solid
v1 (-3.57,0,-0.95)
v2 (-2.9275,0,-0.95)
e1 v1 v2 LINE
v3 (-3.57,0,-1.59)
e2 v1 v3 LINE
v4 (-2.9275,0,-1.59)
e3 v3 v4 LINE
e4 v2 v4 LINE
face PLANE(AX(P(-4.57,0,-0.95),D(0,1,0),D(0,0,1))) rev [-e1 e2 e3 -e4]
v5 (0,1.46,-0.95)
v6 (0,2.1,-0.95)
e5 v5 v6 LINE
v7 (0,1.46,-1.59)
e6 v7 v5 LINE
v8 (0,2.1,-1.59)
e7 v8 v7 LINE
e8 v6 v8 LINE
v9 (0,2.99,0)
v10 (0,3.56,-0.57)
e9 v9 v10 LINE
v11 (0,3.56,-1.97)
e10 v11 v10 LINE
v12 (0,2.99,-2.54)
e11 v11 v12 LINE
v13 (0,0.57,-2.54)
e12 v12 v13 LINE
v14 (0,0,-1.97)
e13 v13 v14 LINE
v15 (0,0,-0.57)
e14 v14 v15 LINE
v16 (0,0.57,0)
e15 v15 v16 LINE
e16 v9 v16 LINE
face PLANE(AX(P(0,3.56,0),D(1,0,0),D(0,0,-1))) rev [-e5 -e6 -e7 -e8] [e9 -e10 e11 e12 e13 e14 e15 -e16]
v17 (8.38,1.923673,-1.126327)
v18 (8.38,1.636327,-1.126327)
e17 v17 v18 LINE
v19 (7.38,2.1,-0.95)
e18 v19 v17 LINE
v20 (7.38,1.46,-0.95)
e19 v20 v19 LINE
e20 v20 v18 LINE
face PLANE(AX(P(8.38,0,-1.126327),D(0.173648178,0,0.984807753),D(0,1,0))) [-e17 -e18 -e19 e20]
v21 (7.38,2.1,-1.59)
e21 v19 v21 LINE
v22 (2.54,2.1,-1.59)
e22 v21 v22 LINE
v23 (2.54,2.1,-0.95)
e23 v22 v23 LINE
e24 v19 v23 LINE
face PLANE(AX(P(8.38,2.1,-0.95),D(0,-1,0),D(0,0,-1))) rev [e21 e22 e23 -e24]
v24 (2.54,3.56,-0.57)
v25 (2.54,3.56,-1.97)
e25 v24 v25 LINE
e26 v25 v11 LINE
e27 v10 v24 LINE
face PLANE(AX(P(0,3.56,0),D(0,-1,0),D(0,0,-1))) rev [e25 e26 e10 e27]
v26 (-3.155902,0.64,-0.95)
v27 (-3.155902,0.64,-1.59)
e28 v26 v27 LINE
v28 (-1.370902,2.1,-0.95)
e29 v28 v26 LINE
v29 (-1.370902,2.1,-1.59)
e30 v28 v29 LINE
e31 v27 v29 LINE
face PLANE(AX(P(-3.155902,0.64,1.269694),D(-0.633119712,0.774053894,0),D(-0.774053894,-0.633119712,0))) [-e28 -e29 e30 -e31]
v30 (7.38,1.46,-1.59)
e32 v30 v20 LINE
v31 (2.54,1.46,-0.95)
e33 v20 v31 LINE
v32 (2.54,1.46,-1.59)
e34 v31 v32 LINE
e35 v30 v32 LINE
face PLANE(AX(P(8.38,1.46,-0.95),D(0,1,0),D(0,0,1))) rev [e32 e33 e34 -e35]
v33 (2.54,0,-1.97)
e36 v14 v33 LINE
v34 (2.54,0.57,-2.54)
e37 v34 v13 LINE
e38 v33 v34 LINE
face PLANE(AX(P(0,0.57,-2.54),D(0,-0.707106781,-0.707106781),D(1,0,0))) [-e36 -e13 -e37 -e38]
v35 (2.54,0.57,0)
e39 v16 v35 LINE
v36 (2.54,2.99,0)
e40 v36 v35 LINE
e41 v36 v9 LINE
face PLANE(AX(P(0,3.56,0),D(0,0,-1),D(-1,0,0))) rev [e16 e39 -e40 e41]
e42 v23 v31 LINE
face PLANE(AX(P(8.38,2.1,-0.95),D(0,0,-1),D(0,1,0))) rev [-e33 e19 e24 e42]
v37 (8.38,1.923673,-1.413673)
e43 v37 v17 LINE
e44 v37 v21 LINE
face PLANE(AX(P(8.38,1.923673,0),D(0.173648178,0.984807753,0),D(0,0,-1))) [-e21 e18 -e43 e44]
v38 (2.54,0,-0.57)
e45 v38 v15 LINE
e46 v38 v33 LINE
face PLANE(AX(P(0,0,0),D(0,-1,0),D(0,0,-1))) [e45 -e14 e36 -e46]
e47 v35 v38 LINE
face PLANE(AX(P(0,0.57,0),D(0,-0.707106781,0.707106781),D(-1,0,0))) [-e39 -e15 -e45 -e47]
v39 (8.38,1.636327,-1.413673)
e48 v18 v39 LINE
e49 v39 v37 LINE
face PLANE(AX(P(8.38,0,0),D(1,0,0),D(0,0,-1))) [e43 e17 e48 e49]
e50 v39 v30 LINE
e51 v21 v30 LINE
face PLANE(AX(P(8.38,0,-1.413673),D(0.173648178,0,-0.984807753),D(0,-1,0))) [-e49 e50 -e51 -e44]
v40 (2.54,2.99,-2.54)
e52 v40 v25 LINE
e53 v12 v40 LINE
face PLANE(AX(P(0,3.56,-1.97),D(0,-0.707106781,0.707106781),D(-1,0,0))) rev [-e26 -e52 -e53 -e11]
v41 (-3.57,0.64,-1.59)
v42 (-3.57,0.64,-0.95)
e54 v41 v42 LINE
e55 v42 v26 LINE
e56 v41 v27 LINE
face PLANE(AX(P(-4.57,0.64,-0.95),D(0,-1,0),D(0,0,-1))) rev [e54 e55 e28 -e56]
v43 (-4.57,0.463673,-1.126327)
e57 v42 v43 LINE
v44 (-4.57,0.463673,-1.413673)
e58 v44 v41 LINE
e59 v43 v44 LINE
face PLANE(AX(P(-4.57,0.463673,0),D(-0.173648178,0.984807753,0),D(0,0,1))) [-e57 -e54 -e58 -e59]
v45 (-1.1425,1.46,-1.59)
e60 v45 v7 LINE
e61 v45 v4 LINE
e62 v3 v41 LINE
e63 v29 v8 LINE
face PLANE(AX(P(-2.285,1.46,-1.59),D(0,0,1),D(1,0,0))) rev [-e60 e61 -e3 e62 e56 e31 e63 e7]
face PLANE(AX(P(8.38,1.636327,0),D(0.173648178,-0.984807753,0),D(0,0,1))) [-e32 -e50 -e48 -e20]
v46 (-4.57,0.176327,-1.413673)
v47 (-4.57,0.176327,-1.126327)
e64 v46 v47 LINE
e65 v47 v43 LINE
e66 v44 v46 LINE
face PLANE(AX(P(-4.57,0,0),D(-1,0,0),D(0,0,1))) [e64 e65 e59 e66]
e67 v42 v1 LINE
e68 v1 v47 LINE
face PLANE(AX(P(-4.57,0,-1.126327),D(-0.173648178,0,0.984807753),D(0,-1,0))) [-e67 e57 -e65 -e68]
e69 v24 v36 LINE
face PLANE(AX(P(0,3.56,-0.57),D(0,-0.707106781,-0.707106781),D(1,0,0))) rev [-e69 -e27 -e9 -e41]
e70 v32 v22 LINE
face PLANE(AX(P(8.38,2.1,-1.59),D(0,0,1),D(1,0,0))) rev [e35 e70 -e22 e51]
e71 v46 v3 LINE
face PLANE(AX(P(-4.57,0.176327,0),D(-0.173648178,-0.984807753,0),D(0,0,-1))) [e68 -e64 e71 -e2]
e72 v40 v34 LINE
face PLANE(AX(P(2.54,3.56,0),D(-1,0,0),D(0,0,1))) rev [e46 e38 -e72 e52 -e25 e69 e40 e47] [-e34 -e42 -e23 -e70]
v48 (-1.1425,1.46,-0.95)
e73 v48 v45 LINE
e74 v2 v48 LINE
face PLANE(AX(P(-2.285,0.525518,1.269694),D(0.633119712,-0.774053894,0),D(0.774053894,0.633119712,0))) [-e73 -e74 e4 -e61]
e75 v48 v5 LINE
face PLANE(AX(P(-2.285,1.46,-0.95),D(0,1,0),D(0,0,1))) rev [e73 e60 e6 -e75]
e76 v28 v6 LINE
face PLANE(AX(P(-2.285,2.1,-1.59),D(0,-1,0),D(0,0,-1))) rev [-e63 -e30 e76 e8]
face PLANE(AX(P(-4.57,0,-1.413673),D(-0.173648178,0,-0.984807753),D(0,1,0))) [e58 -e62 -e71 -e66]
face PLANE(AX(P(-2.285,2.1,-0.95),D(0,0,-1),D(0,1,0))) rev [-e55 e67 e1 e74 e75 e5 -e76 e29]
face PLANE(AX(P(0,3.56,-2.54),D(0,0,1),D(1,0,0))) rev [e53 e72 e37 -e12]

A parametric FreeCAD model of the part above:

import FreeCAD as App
import Part
import Sketcher
Q = App.Units.Quantity


def edges_at(feature, points):
    """Names of the edges that pass closest to the given points."""
    edges = feature.Shape.Edges
    near = lambda p: min(range(len(edges)), key=lambda i: edges[i].distToShape(Part.Vertex(*p))[0])
    return sorted({f"Edge{near(p) + 1}" for p in points})


def add_polygon(sketch, points):
    """Adds a closed chain of lines whose ends are joined by coincident constraints."""
    first, n = sketch.GeometryCount, len(points)
    for a, b in zip(points, points[1:] + points[:1]):
        sketch.addGeometry(Part.LineSegment(App.Vector(*a, 0), App.Vector(*b, 0)), False)
    for i in range(n):
        sketch.addConstraint(Sketcher.Constraint("Coincident", first + i, 2, first + (i + 1) % n, 1))

doc = App.newDocument("Part")
params = doc.addObject("Spreadsheet::Sheet", "Params")
for row, (alias, value) in enumerate([
    ("sketch1_width", "2.54 mm"),
    ("pad1_length", "3.56 mm"),
    ("sketch2_width", "0.64 mm"),
    ("pad2_length", "5.84 mm"),
    ("chamfer_size", "0.57 mm"),
    ("chamfer2_size", "1 mm"),
    ("chamfer2_size2", "0.176327 mm"),
    ("chamfer3_size", "1 mm"),
    ("chamfer3_size2", "0.176327 mm"),
    ("chamfer4_size", "1 mm"),
    ("chamfer4_size2", "0.176327 mm"),
    ("chamfer5_size", "1 mm"),
    ("chamfer5_size2", "0.176327 mm"),
    ("sketch3_width", "0.64 mm"),
    ("pad3_length", "2.285 mm"),
    ("sketch4_width", "0.64 mm"),
    ("pad4_length", "2.285 mm"),
    ("chamfer6_size", "1 mm"),
    ("chamfer6_size2", "0.176327 mm"),
    ("chamfer7_size", "1 mm"),
    ("chamfer7_size2", "0.176327 mm"),
    ("chamfer8_size", "1 mm"),
    ("chamfer8_size2", "0.176327 mm"),
    ("chamfer9_size", "1 mm"),
    ("chamfer9_size2", "0.176327 mm"),
    ("pad5_length", "0.64 mm"),
    ("sketch6_height", "0.64 mm"),
], start=1):
    params.set(f"A{row}", alias)
    params.set(f"B{row}", "=" + value)
    params.setAlias(f"B{row}", alias)

body = doc.addObject("PartDesign::Body", "Body")

# Sketch on XZ plane
sketch1 = body.newObject("Sketcher::SketchObject", "Sketch")
sketch1.AttachmentSupport = (doc.getObject("XZ_Plane"), [""])
sketch1.MapMode = "FlatFace"
add_polygon(sketch1, [(0, -2.5), (0, 0), (2.5, 0), (2.5, -2.5)])  # lines 0-3
sketch1.addConstraint([
    Sketcher.Constraint("Vertical", 0),
    Sketcher.Constraint("Horizontal", 1),
    Sketcher.Constraint("Vertical", 2),
    Sketcher.Constraint("Horizontal", 3),
    Sketcher.Constraint("Coincident", 0, 2, -1, 1),
    Sketcher.Constraint("Equal", 3, 0),
    Sketcher.Constraint("DistanceX", 1, 1, 1, 2, Q("2.54 mm")),
])
sketch1.setExpression("Constraints[10]", "Params.sketch1_width")
pad1 = body.newObject("PartDesign::Pad", "Pad")
pad1.Profile = sketch1
pad1.setExpression("Length", "Params.pad1_length")
pad1.Reversed = True

# Sketch on YZ plane
sketch2 = body.newObject("Sketcher::SketchObject", "Sketch001")
sketch2.AttachmentSupport = (doc.getObject("YZ_Plane"), [""])
sketch2.MapMode = "FlatFace"
sketch2.AttachmentOffset = App.Placement(App.Vector(0, 0, 2.54), App.Rotation())
add_polygon(sketch2, [(2.1, -0.9), (1.5, -0.9), (1.5, -1.6), (2.1, -1.6)])  # lines 0-3
sketch2.addConstraint([
    Sketcher.Constraint("Horizontal", 0),
    Sketcher.Constraint("Vertical", 1),
    Sketcher.Constraint("Horizontal", 2),
    Sketcher.Constraint("Vertical", 3),
    Sketcher.Constraint("Equal", 2, 1),
    Sketcher.Constraint("DistanceX", 0, 2, 0, 1, Q("0.64 mm")),
    Sketcher.Constraint("DistanceX", -1, 1, 2, 2, Q("2.1 mm")),
    Sketcher.Constraint("DistanceY", 0, 2, -1, 1, Q("0.95 mm")),
])
sketch2.setExpression("Constraints[9]", "Params.sketch2_width")
pad2 = body.newObject("PartDesign::Pad", "Pad001")
pad2.Profile = sketch2
pad2.setExpression("Length", "Params.pad2_length")
doc.recompute()

chamfer = body.newObject("PartDesign::Chamfer", "Chamfer")
chamfer.Base = (pad2, edges_at(pad2, [
    (1.27, 3.56, -2.54),
    (1.27, 0, -2.54),
    (1.27, 0, 0),
    (1.27, 3.56, 0),
]))
chamfer.setExpression("Size", "Params.chamfer_size")
doc.recompute()

chamfer2 = body.newObject("PartDesign::Chamfer", "Chamfer001")
chamfer2.Base = (chamfer, edges_at(chamfer, [(8.38, 1.78, -0.95)]))
chamfer2.ChamferType = "Two distances"
chamfer2.setExpression("Size", "Params.chamfer2_size")
chamfer2.setExpression("Size2", "Params.chamfer2_size2")
doc.recompute()

chamfer3 = body.newObject("PartDesign::Chamfer", "Chamfer002")
chamfer3.Base = (chamfer2, edges_at(chamfer2, [(8.38, 1.46, -1.358)]))
chamfer3.ChamferType = "Two distances"
chamfer3.setExpression("Size", "Params.chamfer3_size")
chamfer3.setExpression("Size2", "Params.chamfer3_size2")
chamfer3.FlipDirection = True
doc.recompute()

chamfer4 = body.newObject("PartDesign::Chamfer", "Chamfer003")
chamfer4.Base = (chamfer3, edges_at(chamfer3, [(8.38, 1.868, -1.59)]))
chamfer4.ChamferType = "Two distances"
chamfer4.setExpression("Size", "Params.chamfer4_size")
chamfer4.setExpression("Size2", "Params.chamfer4_size2")
chamfer4.FlipDirection = True
doc.recompute()

chamfer5 = body.newObject("PartDesign::Chamfer", "Chamfer004")
chamfer5.Base = (chamfer4, edges_at(chamfer4, [(8.38, 2.1, -1.27)]))
chamfer5.ChamferType = "Two distances"
chamfer5.setExpression("Size", "Params.chamfer5_size")
chamfer5.setExpression("Size2", "Params.chamfer5_size2")
chamfer5.FlipDirection = True

# Sketch on YZ plane
sketch3 = body.newObject("Sketcher::SketchObject", "Sketch002")
sketch3.AttachmentSupport = (doc.getObject("YZ_Plane"), [""])
sketch3.MapMode = "FlatFace"
add_polygon(sketch3, [(2.1, -1.6), (1.5, -1.6), (1.5, -0.9), (2.1, -0.9)])  # lines 0-3
sketch3.addConstraint([
    Sketcher.Constraint("Horizontal", 0),
    Sketcher.Constraint("Vertical", 1),
    Sketcher.Constraint("Horizontal", 2),
    Sketcher.Constraint("Vertical", 3),
    Sketcher.Constraint("Equal", 2, 1),
    Sketcher.Constraint("DistanceX", 0, 2, 0, 1, Q("0.64 mm")),
    Sketcher.Constraint("DistanceX", -1, 1, 2, 2, Q("2.1 mm")),
    Sketcher.Constraint("DistanceY", 0, 2, -1, 1, Q("1.59 mm")),
])
sketch3.setExpression("Constraints[9]", "Params.sketch3_width")
pad3 = body.newObject("PartDesign::Pad", "Pad002")
pad3.Profile = sketch3
pad3.setExpression("Length", "Params.pad3_length")
pad3.Reversed = True
body2 = doc.addObject("PartDesign::Body", "Body001")

# Sketch on YZ plane
sketch4 = body2.newObject("Sketcher::SketchObject", "Sketch003")
sketch4.AttachmentSupport = (doc.getObject("YZ_Plane001"), [""])
sketch4.MapMode = "FlatFace"
sketch4.AttachmentOffset = App.Placement(App.Vector(0, 0, -2.285), App.Rotation())
add_polygon(sketch4, [(0.6, -1.6), (0, -1.6), (0, -0.9), (0.6, -0.9)])  # lines 0-3
sketch4.addConstraint([
    Sketcher.Constraint("Horizontal", 0),
    Sketcher.Constraint("Vertical", 1),
    Sketcher.Constraint("Horizontal", 2),
    Sketcher.Constraint("Vertical", 3),
    Sketcher.Constraint("PointOnObject", 0, 2, -2),
    Sketcher.Constraint("Equal", 2, 1),
    Sketcher.Constraint("DistanceX", 0, 2, 0, 1, Q("0.64 mm")),
    Sketcher.Constraint("DistanceY", 0, 2, -1, 1, Q("1.59 mm")),
])
sketch4.setExpression("Constraints[10]", "Params.sketch4_width")
pad4 = body2.newObject("PartDesign::Pad", "Pad003")
pad4.Profile = sketch4
pad4.setExpression("Length", "Params.pad4_length")
pad4.Reversed = True
doc.recompute()

chamfer6 = body2.newObject("PartDesign::Chamfer", "Chamfer005")
chamfer6.Base = (pad4, edges_at(pad4, [(-4.57, 0.32, -1.59)]))
chamfer6.ChamferType = "Two distances"
chamfer6.setExpression("Size", "Params.chamfer6_size")
chamfer6.setExpression("Size2", "Params.chamfer6_size2")
doc.recompute()

chamfer7 = body2.newObject("PartDesign::Chamfer", "Chamfer006")
chamfer7.Base = (chamfer6, edges_at(chamfer6, [(-4.57, 0, -1.182)]))
chamfer7.ChamferType = "Two distances"
chamfer7.setExpression("Size", "Params.chamfer7_size")
chamfer7.setExpression("Size2", "Params.chamfer7_size2")
doc.recompute()

chamfer8 = body2.newObject("PartDesign::Chamfer", "Chamfer007")
chamfer8.Base = (chamfer7, edges_at(chamfer7, [(-4.57, 0.408, -0.95)]))
chamfer8.ChamferType = "Two distances"
chamfer8.setExpression("Size", "Params.chamfer8_size")
chamfer8.setExpression("Size2", "Params.chamfer8_size2")
chamfer8.FlipDirection = True
doc.recompute()

chamfer9 = body2.newObject("PartDesign::Chamfer", "Chamfer008")
chamfer9.Base = (chamfer8, edges_at(chamfer8, [(-4.57, 0.64, -1.27)]))
chamfer9.ChamferType = "Two distances"
chamfer9.setExpression("Size", "Params.chamfer9_size")
chamfer9.setExpression("Size2", "Params.chamfer9_size2")
chamfer9.FlipDirection = True
body.AllowCompound = True
doc.recompute()

boolean = body.newObject("PartDesign::Boolean", "Boolean")
boolean.Type = "Fuse"
boolean.addObjects([body2])

# Sketch on XY plane
sketch5 = body.newObject("Sketcher::SketchObject", "Sketch004")
sketch5.AttachmentSupport = (doc.getObject("XY_Plane"), [""])
sketch5.MapMode = "FlatFace"
sketch5.AttachmentOffset = App.Placement(App.Vector(0, 0, -1.59), App.Rotation())
add_polygon(sketch5, [(-1.14, 1.46), (-2.29, 0.53), (-2.29, 0.64), (-3.16, 0.64), (-2.15, 1.46)])  # lines 0-4
sketch5.addConstraint([
    Sketcher.Constraint("Vertical", 1),
    Sketcher.Constraint("Horizontal", 2),
    Sketcher.Constraint("Horizontal", 4),
    Sketcher.Constraint("Parallel", 0, 3),
    Sketcher.Constraint("DistanceY", -1, 1, 1, 2, Q("0.64 mm")),
    Sketcher.Constraint("DistanceY", -1, 1, 3, 2, Q("1.46 mm")),
    Sketcher.Constraint("DistanceX", 2, 2, 2, 1, Q("0.870902 mm")),
    Sketcher.Constraint("DistanceX", 0, 2, -1, 1, Q("2.285 mm")),
    Sketcher.Constraint("DistanceY", 1, 1, 1, 2, Q("0.114482 mm")),
    Sketcher.Constraint("DistanceX", 4, 2, -1, 1, Q("1.1425 mm")),
])
pad5 = body.newObject("PartDesign::Pad", "Pad004")
pad5.Profile = sketch5
pad5.setExpression("Length", "Params.pad5_length")

# Sketch on XY plane
sketch6 = body.newObject("Sketcher::SketchObject", "Sketch005")
sketch6.AttachmentSupport = (doc.getObject("XY_Plane"), [""])
sketch6.MapMode = "FlatFace"
sketch6.AttachmentOffset = App.Placement(App.Vector(0, 0, -1.59), App.Rotation())
add_polygon(sketch6, [(-1.37, 2.1), (-2.15, 1.46), (-2.29, 1.46), (-2.29, 2.1)])  # lines 0-3
add_polygon(sketch6, [(-2.93, 0), (-2.29, 0.53), (-2.29, 0)])  # lines 4-6
sketch6.addConstraint([
    Sketcher.Constraint("Horizontal", 1),
    Sketcher.Constraint("Vertical", 2),
    Sketcher.Constraint("Horizontal", 3),
    Sketcher.Constraint("Vertical", 5),
    Sketcher.Constraint("Horizontal", 6),
    Sketcher.Constraint("PointOnObject", 5, 2, -1),
    Sketcher.Constraint("Parallel", 0, 4),
    Sketcher.Constraint("Vertical", 2, 2, 4, 2),
    Sketcher.Constraint("DistanceY", 2, 1, 2, 2, Q("0.64 mm")),
    Sketcher.Constraint("DistanceY", -1, 1, 2, 2, Q("2.1 mm")),
    Sketcher.Constraint("DistanceX", 3, 1, 3, 2, Q("0.914098 mm")),
    Sketcher.Constraint("DistanceX", 6, 2, 6, 1, Q("0.6425 mm")),
    Sketcher.Constraint("DistanceX", 1, 2, -1, 1, Q("2.285 mm")),
    Sketcher.Constraint("DistanceY", 5, 2, 5, 1, Q("0.525518 mm")),
])
sketch6.setExpression("Constraints[15]", "Params.sketch6_height")
pocket1 = body.newObject("PartDesign::Pocket", "Pocket")
pocket1.Profile = sketch6
pocket1.Type = "ThroughAll"
pocket1.Midplane = True

doc.recompute()
